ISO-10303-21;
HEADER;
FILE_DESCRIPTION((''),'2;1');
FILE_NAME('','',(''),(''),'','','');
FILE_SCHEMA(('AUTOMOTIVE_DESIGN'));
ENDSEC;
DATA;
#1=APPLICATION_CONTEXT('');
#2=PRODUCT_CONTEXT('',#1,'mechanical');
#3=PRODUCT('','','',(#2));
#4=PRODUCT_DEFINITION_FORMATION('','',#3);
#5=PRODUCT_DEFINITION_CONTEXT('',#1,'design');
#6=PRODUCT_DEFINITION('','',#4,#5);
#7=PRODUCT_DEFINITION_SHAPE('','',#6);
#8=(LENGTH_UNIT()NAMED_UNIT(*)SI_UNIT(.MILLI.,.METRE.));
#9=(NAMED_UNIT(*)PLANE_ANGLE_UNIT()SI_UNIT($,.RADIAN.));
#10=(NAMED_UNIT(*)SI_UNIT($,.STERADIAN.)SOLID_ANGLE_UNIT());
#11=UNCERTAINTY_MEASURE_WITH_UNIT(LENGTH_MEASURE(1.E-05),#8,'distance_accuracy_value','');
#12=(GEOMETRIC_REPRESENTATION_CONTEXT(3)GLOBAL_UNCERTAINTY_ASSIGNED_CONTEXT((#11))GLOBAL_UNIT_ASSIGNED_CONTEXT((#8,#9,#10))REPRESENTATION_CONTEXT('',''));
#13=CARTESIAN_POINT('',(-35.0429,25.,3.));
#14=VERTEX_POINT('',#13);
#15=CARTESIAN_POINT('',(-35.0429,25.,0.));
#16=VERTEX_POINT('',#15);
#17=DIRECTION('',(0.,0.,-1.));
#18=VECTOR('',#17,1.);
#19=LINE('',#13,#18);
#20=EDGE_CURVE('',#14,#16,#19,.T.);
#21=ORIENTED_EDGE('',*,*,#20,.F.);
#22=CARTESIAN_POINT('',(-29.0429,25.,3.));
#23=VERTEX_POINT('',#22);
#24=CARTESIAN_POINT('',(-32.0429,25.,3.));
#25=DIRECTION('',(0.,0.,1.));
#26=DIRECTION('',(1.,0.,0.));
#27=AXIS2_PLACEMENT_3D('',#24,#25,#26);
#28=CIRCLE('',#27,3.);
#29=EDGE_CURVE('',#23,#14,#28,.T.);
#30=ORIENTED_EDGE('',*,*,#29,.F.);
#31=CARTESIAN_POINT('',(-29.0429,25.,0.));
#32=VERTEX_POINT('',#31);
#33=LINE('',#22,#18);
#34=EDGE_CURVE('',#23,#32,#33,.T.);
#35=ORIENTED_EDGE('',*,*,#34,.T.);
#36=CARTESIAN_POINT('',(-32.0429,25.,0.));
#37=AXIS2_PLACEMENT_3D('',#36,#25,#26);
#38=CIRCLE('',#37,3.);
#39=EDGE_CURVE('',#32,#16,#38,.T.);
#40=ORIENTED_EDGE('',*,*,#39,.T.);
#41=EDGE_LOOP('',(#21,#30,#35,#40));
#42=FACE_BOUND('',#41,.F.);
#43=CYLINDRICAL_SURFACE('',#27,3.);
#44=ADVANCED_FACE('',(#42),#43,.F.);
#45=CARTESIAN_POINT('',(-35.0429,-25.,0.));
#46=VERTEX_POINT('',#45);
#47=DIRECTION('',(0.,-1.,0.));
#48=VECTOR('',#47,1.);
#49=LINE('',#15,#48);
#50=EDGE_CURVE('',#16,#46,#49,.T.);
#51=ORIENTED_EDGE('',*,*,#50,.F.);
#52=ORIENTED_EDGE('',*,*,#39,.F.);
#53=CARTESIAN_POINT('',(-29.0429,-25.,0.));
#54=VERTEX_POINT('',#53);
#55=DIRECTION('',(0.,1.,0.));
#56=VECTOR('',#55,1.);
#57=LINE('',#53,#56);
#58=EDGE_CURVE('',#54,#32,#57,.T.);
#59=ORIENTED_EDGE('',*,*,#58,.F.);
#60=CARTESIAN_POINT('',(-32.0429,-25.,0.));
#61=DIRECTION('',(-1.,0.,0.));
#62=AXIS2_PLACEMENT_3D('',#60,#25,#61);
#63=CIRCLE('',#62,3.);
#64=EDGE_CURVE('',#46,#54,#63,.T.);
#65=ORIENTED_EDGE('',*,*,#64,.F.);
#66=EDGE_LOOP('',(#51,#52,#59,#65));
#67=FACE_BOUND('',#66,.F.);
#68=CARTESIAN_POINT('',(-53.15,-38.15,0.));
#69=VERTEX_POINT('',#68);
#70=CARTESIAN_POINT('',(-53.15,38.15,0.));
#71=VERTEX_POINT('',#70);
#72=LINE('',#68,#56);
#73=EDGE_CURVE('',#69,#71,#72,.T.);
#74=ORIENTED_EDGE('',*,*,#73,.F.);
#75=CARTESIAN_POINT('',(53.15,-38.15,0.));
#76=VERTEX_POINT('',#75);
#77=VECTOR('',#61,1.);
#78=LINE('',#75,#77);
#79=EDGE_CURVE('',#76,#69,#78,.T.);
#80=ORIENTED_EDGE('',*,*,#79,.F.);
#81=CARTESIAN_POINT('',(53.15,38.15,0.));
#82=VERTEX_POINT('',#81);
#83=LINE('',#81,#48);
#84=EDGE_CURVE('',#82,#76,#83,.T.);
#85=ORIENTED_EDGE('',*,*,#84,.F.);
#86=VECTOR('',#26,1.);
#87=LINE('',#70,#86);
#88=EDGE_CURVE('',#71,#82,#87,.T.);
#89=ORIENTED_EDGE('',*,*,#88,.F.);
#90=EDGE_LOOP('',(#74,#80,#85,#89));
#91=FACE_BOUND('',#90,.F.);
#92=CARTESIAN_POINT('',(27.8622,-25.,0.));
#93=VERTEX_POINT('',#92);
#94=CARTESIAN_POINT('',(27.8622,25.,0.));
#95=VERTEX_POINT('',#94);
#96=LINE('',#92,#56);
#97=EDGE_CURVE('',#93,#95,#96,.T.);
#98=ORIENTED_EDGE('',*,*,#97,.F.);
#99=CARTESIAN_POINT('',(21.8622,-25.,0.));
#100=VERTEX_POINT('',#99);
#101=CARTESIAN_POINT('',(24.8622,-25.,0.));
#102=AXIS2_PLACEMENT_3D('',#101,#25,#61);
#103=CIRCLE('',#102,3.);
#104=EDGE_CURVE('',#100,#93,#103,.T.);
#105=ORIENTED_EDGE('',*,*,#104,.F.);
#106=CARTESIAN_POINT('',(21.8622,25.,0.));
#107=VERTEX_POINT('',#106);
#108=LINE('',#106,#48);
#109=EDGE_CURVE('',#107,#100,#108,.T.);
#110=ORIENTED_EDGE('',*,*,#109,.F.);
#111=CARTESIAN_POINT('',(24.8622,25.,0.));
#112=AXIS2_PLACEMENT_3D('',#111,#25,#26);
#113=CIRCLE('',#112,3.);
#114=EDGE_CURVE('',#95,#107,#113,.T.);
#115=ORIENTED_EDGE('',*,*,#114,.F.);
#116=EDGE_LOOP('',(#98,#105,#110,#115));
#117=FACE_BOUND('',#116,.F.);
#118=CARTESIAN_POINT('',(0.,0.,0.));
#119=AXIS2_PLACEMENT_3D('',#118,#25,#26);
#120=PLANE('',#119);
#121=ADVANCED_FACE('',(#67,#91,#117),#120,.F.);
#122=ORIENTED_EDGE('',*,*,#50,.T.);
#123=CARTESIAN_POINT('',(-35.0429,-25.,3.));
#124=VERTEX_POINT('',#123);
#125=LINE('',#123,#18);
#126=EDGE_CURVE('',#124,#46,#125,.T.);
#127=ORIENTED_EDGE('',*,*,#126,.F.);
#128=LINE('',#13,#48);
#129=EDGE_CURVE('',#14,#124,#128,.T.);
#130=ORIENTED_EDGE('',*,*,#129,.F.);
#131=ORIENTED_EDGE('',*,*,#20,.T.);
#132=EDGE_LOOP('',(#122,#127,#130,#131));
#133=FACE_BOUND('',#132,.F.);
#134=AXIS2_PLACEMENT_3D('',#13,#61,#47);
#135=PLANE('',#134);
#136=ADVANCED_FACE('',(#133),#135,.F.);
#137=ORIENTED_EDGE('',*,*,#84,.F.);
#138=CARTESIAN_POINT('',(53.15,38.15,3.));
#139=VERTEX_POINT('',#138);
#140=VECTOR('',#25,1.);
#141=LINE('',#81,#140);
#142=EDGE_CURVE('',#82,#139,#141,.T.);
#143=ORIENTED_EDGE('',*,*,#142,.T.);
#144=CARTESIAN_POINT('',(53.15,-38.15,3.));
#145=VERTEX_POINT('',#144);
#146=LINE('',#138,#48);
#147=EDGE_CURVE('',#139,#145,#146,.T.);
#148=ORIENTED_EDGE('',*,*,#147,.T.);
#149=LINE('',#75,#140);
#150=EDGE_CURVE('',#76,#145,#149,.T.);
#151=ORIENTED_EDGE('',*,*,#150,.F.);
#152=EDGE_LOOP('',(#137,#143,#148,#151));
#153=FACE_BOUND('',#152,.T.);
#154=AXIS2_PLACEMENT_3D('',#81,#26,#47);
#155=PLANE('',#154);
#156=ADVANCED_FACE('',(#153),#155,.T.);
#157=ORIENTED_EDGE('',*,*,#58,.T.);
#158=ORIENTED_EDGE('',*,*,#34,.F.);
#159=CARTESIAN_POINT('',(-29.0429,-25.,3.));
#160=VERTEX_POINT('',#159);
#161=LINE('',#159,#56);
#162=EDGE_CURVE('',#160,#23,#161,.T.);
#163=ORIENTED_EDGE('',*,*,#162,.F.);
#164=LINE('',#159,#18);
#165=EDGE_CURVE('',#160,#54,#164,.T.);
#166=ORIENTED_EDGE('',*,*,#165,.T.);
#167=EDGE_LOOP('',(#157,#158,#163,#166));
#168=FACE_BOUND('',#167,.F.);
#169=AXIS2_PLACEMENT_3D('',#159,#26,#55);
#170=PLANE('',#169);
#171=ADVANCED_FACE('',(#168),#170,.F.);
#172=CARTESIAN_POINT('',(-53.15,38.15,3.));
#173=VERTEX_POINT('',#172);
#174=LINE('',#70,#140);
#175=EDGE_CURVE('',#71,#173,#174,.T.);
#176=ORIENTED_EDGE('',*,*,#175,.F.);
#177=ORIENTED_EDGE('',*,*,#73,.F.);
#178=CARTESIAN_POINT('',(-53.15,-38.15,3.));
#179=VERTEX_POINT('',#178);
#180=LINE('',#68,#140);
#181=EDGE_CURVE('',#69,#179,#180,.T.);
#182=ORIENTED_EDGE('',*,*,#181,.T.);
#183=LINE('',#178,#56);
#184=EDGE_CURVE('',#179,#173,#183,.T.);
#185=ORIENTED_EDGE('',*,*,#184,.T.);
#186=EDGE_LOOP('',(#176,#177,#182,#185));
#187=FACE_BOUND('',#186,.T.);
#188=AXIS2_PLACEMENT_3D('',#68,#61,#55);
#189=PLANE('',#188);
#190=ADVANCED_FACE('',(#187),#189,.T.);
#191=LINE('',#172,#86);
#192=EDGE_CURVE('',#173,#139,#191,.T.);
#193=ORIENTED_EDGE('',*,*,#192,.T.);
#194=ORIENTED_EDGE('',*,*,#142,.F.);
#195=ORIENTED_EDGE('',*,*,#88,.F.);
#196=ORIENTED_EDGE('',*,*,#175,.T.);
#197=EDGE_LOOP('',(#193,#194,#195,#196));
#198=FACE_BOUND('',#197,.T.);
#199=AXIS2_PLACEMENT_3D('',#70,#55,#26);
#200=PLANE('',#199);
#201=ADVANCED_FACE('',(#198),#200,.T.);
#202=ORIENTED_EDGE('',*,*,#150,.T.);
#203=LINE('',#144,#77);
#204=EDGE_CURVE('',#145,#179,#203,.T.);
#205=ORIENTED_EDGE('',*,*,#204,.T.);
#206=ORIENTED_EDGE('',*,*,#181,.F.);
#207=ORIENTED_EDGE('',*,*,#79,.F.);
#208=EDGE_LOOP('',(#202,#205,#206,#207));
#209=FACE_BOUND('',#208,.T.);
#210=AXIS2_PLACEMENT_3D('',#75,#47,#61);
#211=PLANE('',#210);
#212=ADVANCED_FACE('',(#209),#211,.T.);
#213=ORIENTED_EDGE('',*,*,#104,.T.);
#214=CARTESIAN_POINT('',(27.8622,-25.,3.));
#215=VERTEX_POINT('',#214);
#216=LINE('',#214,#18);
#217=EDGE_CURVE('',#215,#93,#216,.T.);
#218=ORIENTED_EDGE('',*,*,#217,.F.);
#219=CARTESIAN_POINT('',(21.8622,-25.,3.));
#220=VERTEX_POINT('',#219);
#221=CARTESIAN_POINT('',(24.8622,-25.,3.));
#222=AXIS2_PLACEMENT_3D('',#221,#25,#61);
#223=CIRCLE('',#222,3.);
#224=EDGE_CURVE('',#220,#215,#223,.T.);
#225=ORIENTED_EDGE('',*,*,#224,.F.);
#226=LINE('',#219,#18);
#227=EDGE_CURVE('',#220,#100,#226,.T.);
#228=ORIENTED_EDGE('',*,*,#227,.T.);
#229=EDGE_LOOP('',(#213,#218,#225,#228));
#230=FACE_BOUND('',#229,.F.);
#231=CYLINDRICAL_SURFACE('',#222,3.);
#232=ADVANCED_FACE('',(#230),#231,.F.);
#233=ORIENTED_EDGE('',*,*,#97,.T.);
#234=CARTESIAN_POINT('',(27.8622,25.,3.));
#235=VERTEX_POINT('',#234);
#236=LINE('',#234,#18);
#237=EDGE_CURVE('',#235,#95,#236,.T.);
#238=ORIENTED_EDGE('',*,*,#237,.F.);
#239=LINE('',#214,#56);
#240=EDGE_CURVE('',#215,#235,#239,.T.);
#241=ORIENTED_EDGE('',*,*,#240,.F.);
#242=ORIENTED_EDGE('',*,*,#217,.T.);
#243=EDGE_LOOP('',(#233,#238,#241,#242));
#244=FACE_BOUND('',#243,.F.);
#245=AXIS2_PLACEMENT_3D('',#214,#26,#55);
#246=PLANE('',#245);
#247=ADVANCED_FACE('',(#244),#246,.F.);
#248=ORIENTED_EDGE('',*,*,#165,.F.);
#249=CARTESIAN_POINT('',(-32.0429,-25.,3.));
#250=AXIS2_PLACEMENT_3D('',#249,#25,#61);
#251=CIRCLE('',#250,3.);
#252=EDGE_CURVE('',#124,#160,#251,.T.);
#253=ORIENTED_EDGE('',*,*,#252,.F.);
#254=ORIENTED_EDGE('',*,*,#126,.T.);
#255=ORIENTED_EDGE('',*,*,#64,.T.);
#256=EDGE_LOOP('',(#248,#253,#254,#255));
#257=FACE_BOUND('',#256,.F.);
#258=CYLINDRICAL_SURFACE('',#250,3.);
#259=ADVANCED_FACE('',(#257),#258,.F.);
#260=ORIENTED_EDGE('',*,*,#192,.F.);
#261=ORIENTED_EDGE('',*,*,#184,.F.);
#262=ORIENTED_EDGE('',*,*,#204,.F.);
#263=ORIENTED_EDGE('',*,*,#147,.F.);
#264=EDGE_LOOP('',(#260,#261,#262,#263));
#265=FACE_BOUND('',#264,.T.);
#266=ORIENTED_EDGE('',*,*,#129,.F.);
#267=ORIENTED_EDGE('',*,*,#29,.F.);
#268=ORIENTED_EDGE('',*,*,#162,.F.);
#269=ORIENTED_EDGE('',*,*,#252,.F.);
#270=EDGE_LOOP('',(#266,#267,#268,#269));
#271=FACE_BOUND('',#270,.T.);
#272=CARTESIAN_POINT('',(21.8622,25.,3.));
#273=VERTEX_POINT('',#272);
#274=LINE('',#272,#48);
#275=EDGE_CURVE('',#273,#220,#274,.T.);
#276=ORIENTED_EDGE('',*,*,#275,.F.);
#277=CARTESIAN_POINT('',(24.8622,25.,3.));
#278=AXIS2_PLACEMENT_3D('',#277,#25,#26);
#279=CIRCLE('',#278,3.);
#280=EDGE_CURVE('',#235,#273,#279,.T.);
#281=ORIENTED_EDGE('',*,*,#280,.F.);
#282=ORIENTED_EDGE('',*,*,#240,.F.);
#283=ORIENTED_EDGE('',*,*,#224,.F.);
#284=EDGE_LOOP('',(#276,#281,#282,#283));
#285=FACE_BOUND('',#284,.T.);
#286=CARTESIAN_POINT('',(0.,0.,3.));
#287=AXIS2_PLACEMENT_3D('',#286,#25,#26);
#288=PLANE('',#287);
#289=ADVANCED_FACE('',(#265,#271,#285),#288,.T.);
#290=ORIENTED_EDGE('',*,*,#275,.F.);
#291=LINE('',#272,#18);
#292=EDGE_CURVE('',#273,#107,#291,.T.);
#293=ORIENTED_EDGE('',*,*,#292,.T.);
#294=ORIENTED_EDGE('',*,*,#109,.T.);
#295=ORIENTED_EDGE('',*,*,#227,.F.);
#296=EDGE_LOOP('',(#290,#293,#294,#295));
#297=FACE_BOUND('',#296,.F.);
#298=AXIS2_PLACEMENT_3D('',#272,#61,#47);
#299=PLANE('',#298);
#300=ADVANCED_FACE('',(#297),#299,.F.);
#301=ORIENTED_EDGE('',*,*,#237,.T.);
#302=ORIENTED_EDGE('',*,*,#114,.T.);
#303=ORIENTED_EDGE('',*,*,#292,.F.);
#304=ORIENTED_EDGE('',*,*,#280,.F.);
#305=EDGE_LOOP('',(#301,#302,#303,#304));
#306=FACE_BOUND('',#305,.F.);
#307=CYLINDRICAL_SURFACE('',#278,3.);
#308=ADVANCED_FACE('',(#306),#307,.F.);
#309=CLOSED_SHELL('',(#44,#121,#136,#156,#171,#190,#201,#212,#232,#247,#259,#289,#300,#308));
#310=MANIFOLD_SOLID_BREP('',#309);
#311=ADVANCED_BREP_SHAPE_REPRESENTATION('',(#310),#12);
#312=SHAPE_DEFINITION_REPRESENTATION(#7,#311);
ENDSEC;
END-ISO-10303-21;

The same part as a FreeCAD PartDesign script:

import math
import FreeCAD as App
import Part
import Sketcher

doc = App.newDocument("Part")
body = doc.addObject("PartDesign::Body", "Body")

# Sketch on XY plane
sketch1 = doc.addObject("Sketcher::SketchObject", "Sketch")
body.addObject(sketch1)
sketch1.AttachmentSupport = (doc.XY_Plane, [""])
sketch1.MapMode = "FlatFace"
sketch1.addGeometry(Part.LineSegment(App.Vector(-53, -38, 0), App.Vector(53, -38, 0)), False)
sketch1.addGeometry(Part.LineSegment(App.Vector(53, -38, 0), App.Vector(53, 38, 0)), False)
sketch1.addGeometry(Part.LineSegment(App.Vector(53, 38, 0), App.Vector(-53, 38, 0)), False)
sketch1.addGeometry(Part.LineSegment(App.Vector(-53, 38, 0), App.Vector(-53, -38, 0)), False)
sketch1.addConstraint(Sketcher.Constraint("Coincident", 0, 2, 1, 1))
sketch1.addConstraint(Sketcher.Constraint("Coincident", 1, 2, 2, 1))
sketch1.addConstraint(Sketcher.Constraint("Coincident", 2, 2, 3, 1))
sketch1.addConstraint(Sketcher.Constraint("Coincident", 3, 2, 0, 1))
sketch1.addConstraint(Sketcher.Constraint("Horizontal", 0))
sketch1.addConstraint(Sketcher.Constraint("Vertical", 1))
sketch1.addConstraint(Sketcher.Constraint("Horizontal", 2))
sketch1.addConstraint(Sketcher.Constraint("Vertical", 3))
sketch1.addConstraint(Sketcher.Constraint("Symmetric", 0, 2, 2, 2, -1, 1))
sketch1.addConstraint(Sketcher.Constraint("DistanceX", 0, 1, 0, 2, 106.3))
sketch1.addConstraint(Sketcher.Constraint("DistanceY", 1, 1, 1, 2, 76.3))
pad1 = doc.addObject("PartDesign::Pad", "Pad")
body.addObject(pad1)
pad1.Profile = sketch1
pad1.Length = 3

# Sketch on XY plane
sketch2 = doc.addObject("Sketcher::SketchObject", "Sketch001")
body.addObject(sketch2)
sketch2.AttachmentSupport = (doc.XY_Plane, [""])
sketch2.MapMode = "FlatFace"
sketch2.AttachmentOffset = App.Placement(App.Vector(0, 0, 3), App.Rotation())
sketch2.addGeometry(Part.ArcOfCircle(Part.Circle(App.Vector(24.9, 25, 0), App.Vector(0, 0, 1), 3), math.radians(0), math.radians(180)), False)
sketch2.addGeometry(Part.LineSegment(App.Vector(21.9, 25, 0), App.Vector(21.9, -25, 0)), False)
sketch2.addGeometry(Part.ArcOfCircle(Part.Circle(App.Vector(24.9, -25, 0), App.Vector(0, 0, 1), 3), math.radians(180), math.radians(360)), False)
sketch2.addGeometry(Part.LineSegment(App.Vector(27.9, -25, 0), App.Vector(27.9, 25, 0)), False)
sketch2.addGeometry(Part.ArcOfCircle(Part.Circle(App.Vector(-32, 25, 0), App.Vector(0, 0, 1), 3), math.radians(0), math.radians(180)), False)
sketch2.addGeometry(Part.LineSegment(App.Vector(-35, 25, 0), App.Vector(-35, -25, 0)), False)
sketch2.addGeometry(Part.ArcOfCircle(Part.Circle(App.Vector(-32, -25, 0), App.Vector(0, 0, 1), 3), math.radians(180), math.radians(360)), False)
sketch2.addGeometry(Part.LineSegment(App.Vector(-29, -25, 0), App.Vector(-29, 25, 0)), False)
sketch2.addConstraint(Sketcher.Constraint("Tangent", 0, 2, 1, 1))
sketch2.addConstraint(Sketcher.Constraint("Tangent", 1, 2, 2, 1))
sketch2.addConstraint(Sketcher.Constraint("Tangent", 2, 2, 3, 1))
sketch2.addConstraint(Sketcher.Constraint("Tangent", 3, 2, 0, 1))
sketch2.addConstraint(Sketcher.Constraint("Tangent", 4, 2, 5, 1))
sketch2.addConstraint(Sketcher.Constraint("Tangent", 5, 2, 6, 1))
sketch2.addConstraint(Sketcher.Constraint("Tangent", 6, 2, 7, 1))
sketch2.addConstraint(Sketcher.Constraint("Tangent", 7, 2, 4, 1))
sketch2.addConstraint(Sketcher.Constraint("Vertical", 1))
sketch2.addConstraint(Sketcher.Constraint("Vertical", 3))
sketch2.addConstraint(Sketcher.Constraint("Vertical", 5))
sketch2.addConstraint(Sketcher.Constraint("Vertical", 7))
sketch2.addConstraint(Sketcher.Constraint("Equal", 2, 4))
sketch2.addConstraint(Sketcher.Constraint("Horizontal", 0, 3, 4, 3))
sketch2.addConstraint(Sketcher.Constraint("Horizontal", 2, 3, 6, 3))
sketch2.addConstraint(Sketcher.Constraint("Radius", 0, 3.0))
sketch2.addConstraint(Sketcher.Constraint("DistanceY", 1, 2, 1, 1, 50.0))
sketch2.addConstraint(Sketcher.Constraint("DistanceY", -1, 1, 0, 3, 25.0))
sketch2.addConstraint(Sketcher.Constraint("DistanceX", 4, 3, -1, 1, 32.043))
sketch2.addConstraint(Sketcher.Constraint("DistanceX", 4, 3, 0, 3, 56.905))
pocket1 = doc.addObject("PartDesign::Pocket", "Pocket")
body.addObject(pocket1)
pocket1.Profile = sketch2
pocket1.Length = 3

doc.recompute()
